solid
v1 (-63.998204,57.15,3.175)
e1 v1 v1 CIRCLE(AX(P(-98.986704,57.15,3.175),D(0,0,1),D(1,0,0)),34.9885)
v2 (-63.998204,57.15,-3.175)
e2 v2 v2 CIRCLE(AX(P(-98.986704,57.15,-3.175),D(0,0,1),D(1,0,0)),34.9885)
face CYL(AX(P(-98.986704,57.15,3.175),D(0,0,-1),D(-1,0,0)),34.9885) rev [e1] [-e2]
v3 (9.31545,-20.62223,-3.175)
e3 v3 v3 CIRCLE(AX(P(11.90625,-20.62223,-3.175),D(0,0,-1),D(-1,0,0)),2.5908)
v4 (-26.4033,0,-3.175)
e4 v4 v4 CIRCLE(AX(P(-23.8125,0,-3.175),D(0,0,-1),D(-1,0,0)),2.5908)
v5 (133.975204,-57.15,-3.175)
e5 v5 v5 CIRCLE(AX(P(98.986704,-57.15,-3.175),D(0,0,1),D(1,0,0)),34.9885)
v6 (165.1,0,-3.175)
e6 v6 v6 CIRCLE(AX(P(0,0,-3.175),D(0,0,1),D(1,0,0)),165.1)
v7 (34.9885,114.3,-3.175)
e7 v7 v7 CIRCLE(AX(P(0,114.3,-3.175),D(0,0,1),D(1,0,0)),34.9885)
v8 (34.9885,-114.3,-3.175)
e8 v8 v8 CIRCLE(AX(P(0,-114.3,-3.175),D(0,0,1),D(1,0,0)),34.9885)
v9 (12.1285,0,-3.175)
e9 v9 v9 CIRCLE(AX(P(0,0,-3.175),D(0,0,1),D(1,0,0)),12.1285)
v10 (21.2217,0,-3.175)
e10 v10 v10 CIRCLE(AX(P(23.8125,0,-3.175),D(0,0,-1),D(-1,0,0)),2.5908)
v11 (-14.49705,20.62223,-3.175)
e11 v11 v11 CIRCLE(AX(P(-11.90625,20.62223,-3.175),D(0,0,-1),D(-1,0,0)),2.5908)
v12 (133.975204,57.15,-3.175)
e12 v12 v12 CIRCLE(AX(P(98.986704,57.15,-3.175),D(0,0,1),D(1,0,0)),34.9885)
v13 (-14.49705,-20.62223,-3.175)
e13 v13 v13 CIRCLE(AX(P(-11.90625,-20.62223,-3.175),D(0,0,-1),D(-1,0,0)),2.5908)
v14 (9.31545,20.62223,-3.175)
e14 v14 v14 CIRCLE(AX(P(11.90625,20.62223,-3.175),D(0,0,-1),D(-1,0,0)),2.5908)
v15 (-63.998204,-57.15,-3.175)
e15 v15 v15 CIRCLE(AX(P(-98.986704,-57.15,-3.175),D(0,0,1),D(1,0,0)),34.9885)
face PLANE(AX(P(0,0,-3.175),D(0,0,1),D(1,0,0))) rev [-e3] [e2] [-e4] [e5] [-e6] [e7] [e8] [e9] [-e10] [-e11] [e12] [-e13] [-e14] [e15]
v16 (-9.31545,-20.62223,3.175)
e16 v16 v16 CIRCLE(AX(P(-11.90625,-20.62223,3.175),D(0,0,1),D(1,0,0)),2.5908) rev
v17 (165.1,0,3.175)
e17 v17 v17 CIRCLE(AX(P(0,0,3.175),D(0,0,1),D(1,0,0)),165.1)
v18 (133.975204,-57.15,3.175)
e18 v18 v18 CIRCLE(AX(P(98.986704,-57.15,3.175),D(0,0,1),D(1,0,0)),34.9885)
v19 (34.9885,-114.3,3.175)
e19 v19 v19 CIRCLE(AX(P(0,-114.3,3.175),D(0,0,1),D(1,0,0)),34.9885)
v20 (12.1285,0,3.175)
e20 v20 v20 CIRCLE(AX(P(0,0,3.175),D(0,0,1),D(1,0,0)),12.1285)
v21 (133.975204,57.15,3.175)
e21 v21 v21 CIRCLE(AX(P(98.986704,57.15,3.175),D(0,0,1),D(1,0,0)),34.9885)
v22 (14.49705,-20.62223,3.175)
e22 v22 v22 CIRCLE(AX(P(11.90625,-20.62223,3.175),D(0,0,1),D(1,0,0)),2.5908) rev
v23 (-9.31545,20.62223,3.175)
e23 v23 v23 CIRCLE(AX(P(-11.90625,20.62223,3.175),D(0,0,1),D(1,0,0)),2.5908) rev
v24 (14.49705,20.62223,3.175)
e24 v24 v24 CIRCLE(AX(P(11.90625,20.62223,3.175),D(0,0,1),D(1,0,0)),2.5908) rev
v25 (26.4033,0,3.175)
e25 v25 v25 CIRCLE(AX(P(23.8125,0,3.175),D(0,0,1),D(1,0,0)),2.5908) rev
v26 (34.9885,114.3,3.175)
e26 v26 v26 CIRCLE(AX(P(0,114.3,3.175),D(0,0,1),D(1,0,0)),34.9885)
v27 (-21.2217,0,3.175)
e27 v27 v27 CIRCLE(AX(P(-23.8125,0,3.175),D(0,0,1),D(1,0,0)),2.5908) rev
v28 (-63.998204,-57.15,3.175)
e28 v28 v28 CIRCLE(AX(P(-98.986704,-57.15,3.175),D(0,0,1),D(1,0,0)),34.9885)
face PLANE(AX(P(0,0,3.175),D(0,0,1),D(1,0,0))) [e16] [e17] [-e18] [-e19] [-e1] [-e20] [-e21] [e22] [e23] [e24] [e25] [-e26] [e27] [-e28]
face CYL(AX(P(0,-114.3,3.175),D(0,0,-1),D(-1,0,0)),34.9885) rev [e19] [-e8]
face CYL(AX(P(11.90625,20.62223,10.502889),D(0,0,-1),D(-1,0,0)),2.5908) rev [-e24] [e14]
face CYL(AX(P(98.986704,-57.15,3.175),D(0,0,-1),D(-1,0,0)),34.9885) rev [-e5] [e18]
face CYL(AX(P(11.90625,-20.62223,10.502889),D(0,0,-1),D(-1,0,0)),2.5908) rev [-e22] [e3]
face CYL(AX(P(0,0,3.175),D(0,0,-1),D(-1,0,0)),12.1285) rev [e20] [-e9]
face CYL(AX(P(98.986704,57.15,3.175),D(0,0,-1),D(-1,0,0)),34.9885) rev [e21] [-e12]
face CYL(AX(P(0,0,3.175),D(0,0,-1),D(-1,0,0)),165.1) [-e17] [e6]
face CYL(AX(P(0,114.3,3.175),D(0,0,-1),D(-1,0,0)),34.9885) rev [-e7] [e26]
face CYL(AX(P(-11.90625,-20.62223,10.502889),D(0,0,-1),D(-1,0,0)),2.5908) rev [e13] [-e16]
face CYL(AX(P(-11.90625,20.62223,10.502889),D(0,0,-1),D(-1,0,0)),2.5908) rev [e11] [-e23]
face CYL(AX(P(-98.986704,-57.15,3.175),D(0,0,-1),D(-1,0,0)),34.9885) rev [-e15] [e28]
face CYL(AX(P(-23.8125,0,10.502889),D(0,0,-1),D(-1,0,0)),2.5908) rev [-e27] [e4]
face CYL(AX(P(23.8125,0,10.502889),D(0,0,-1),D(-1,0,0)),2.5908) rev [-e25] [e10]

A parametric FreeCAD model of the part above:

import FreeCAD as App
import Part
import Sketcher
Q = App.Units.Quantity

doc = App.newDocument("Part")
body = doc.addObject("PartDesign::Body", "Body")

sketch1 = doc.addObject("Sketcher::SketchObject", "Sketch")
body.addObject(sketch1)
sketch1.AttachmentSupport = (doc.XY_Plane, [""])
sketch1.MapMode = "FlatFace"
sketch1.addGeometry([
    Part.Circle(App.Vector(0, 0, 0), App.Vector(0, 0, 1), 165.1),
    Part.Circle(App.Vector(-98.986704, -57.15, 0), App.Vector(0, 0, 1), 34.9885),
    Part.Circle(App.Vector(0, -114.3, 0), App.Vector(0, 0, 1), 34.9885),
    Part.Circle(App.Vector(0, 0, 0), App.Vector(0, 0, 1), 12.1285),
    Part.Circle(App.Vector(98.986704, -57.15, 0), App.Vector(0, 0, 1), 34.9885),
    Part.Circle(App.Vector(-98.986704, 57.15, 0), App.Vector(0, 0, 1), 34.9885),
    Part.Circle(App.Vector(98.986704, 57.15, 0), App.Vector(0, 0, 1), 34.9885),
    Part.Circle(App.Vector(0, 114.3, 0), App.Vector(0, 0, 1), 34.9885),
], False)
sketch1.addConstraint([
    Sketcher.Constraint("Coincident", 0, 3, -1, 1),
    Sketcher.Constraint("Coincident", 3, 3, -1, 1),
    Sketcher.Constraint("Equal", 1, 2),
    Sketcher.Constraint("Equal", 2, 4),
    Sketcher.Constraint("Equal", 4, 5),
    Sketcher.Constraint("Equal", 5, 6),
    Sketcher.Constraint("Equal", 6, 7),
    Sketcher.Constraint("Symmetric", 4, 3, 5, 3, -1, 1),
    Sketcher.Constraint("Symmetric", 1, 3, 6, 3, -1, 1),
    Sketcher.Constraint("Symmetric", 2, 3, 7, 3, -1, 1),
    Sketcher.Constraint("Symmetric", 1, 3, 4, 3, -2),
    Sketcher.Constraint("PointOnObject", 2, 3, -2),
    Sketcher.Constraint("Diameter", 0, Q("13 in")),
    Sketcher.Constraint("Diameter", 1, Q("2.755 in")),
    Sketcher.Constraint("Diameter", 3, Q("0.955 in")),
    Sketcher.Constraint("DistanceY", 2, 3, -1, 1, Q("4.5 in")),
    Sketcher.Constraint("DistanceY", 1, 3, 5, 3, Q("4.5 in")),
    Sketcher.Constraint("DistanceX", 1, 3, -1, 1, 98.986704),
])
pad1 = doc.addObject("PartDesign::Pad", "Pad")
body.addObject(pad1)
pad1.Profile = sketch1
pad1.Length = Q("0.25 in")
pad1.Midplane = True

sketch2 = doc.addObject("Sketcher::SketchObject", "Sketch001")
body.addObject(sketch2)
sketch2.AttachmentSupport = (doc.XY_Plane, [""])
sketch2.MapMode = "FlatFace"
sketch2.AttachmentOffset = App.Placement(App.Vector(0, 0, -0.125 * 25.4), App.Rotation())
sketch2.addGeometry([
    Part.Circle(App.Vector(23.8125, 0, 0), App.Vector(0, 0, 1), 2.5908),
    Part.Circle(App.Vector(11.90625, 20.62223, 0), App.Vector(0, 0, 1), 2.5908),
    Part.Circle(App.Vector(-11.90625, 20.62223, 0), App.Vector(0, 0, 1), 2.5908),
    Part.Circle(App.Vector(-23.8125, 0, 0), App.Vector(0, 0, 1), 2.5908),
    Part.Circle(App.Vector(-11.90625, -20.62223, 0), App.Vector(0, 0, 1), 2.5908),
    Part.Circle(App.Vector(11.90625, -20.62223, 0), App.Vector(0, 0, 1), 2.5908),
], False)
sketch2.addConstraint([
    Sketcher.Constraint("Equal", 0, 1),
    Sketcher.Constraint("Equal", 1, 2),
    Sketcher.Constraint("Equal", 2, 3),
    Sketcher.Constraint("Equal", 3, 4),
    Sketcher.Constraint("Equal", 4, 5),
    Sketcher.Constraint("Symmetric", 0, 3, 3, 3, -1, 1),
    Sketcher.Constraint("Symmetric", 1, 3, 4, 3, -1, 1),
    Sketcher.Constraint("Symmetric", 2, 3, 5, 3, -1, 1),
    Sketcher.Constraint("Symmetric", 1, 3, 2, 3, -2),
    Sketcher.Constraint("PointOnObject", 0, 3, -1),
    Sketcher.Constraint("Diameter", 0, Q("0.204 in")),
    Sketcher.Constraint("DistanceX", -1, 1, 0, 3, Q("0.9375 in")),
    Sketcher.Constraint("DistanceX", -1, 1, 1, 3, Q("0.46875 in")),
    Sketcher.Constraint("DistanceY", -1, 1, 1, 3, 20.62223),
])
pocket1 = doc.addObject("PartDesign::Pocket", "Pocket")
body.addObject(pocket1)
pocket1.Profile = sketch2
pocket1.Length = Q("0.25 in")
pocket1.Reversed = True

doc.recompute()
